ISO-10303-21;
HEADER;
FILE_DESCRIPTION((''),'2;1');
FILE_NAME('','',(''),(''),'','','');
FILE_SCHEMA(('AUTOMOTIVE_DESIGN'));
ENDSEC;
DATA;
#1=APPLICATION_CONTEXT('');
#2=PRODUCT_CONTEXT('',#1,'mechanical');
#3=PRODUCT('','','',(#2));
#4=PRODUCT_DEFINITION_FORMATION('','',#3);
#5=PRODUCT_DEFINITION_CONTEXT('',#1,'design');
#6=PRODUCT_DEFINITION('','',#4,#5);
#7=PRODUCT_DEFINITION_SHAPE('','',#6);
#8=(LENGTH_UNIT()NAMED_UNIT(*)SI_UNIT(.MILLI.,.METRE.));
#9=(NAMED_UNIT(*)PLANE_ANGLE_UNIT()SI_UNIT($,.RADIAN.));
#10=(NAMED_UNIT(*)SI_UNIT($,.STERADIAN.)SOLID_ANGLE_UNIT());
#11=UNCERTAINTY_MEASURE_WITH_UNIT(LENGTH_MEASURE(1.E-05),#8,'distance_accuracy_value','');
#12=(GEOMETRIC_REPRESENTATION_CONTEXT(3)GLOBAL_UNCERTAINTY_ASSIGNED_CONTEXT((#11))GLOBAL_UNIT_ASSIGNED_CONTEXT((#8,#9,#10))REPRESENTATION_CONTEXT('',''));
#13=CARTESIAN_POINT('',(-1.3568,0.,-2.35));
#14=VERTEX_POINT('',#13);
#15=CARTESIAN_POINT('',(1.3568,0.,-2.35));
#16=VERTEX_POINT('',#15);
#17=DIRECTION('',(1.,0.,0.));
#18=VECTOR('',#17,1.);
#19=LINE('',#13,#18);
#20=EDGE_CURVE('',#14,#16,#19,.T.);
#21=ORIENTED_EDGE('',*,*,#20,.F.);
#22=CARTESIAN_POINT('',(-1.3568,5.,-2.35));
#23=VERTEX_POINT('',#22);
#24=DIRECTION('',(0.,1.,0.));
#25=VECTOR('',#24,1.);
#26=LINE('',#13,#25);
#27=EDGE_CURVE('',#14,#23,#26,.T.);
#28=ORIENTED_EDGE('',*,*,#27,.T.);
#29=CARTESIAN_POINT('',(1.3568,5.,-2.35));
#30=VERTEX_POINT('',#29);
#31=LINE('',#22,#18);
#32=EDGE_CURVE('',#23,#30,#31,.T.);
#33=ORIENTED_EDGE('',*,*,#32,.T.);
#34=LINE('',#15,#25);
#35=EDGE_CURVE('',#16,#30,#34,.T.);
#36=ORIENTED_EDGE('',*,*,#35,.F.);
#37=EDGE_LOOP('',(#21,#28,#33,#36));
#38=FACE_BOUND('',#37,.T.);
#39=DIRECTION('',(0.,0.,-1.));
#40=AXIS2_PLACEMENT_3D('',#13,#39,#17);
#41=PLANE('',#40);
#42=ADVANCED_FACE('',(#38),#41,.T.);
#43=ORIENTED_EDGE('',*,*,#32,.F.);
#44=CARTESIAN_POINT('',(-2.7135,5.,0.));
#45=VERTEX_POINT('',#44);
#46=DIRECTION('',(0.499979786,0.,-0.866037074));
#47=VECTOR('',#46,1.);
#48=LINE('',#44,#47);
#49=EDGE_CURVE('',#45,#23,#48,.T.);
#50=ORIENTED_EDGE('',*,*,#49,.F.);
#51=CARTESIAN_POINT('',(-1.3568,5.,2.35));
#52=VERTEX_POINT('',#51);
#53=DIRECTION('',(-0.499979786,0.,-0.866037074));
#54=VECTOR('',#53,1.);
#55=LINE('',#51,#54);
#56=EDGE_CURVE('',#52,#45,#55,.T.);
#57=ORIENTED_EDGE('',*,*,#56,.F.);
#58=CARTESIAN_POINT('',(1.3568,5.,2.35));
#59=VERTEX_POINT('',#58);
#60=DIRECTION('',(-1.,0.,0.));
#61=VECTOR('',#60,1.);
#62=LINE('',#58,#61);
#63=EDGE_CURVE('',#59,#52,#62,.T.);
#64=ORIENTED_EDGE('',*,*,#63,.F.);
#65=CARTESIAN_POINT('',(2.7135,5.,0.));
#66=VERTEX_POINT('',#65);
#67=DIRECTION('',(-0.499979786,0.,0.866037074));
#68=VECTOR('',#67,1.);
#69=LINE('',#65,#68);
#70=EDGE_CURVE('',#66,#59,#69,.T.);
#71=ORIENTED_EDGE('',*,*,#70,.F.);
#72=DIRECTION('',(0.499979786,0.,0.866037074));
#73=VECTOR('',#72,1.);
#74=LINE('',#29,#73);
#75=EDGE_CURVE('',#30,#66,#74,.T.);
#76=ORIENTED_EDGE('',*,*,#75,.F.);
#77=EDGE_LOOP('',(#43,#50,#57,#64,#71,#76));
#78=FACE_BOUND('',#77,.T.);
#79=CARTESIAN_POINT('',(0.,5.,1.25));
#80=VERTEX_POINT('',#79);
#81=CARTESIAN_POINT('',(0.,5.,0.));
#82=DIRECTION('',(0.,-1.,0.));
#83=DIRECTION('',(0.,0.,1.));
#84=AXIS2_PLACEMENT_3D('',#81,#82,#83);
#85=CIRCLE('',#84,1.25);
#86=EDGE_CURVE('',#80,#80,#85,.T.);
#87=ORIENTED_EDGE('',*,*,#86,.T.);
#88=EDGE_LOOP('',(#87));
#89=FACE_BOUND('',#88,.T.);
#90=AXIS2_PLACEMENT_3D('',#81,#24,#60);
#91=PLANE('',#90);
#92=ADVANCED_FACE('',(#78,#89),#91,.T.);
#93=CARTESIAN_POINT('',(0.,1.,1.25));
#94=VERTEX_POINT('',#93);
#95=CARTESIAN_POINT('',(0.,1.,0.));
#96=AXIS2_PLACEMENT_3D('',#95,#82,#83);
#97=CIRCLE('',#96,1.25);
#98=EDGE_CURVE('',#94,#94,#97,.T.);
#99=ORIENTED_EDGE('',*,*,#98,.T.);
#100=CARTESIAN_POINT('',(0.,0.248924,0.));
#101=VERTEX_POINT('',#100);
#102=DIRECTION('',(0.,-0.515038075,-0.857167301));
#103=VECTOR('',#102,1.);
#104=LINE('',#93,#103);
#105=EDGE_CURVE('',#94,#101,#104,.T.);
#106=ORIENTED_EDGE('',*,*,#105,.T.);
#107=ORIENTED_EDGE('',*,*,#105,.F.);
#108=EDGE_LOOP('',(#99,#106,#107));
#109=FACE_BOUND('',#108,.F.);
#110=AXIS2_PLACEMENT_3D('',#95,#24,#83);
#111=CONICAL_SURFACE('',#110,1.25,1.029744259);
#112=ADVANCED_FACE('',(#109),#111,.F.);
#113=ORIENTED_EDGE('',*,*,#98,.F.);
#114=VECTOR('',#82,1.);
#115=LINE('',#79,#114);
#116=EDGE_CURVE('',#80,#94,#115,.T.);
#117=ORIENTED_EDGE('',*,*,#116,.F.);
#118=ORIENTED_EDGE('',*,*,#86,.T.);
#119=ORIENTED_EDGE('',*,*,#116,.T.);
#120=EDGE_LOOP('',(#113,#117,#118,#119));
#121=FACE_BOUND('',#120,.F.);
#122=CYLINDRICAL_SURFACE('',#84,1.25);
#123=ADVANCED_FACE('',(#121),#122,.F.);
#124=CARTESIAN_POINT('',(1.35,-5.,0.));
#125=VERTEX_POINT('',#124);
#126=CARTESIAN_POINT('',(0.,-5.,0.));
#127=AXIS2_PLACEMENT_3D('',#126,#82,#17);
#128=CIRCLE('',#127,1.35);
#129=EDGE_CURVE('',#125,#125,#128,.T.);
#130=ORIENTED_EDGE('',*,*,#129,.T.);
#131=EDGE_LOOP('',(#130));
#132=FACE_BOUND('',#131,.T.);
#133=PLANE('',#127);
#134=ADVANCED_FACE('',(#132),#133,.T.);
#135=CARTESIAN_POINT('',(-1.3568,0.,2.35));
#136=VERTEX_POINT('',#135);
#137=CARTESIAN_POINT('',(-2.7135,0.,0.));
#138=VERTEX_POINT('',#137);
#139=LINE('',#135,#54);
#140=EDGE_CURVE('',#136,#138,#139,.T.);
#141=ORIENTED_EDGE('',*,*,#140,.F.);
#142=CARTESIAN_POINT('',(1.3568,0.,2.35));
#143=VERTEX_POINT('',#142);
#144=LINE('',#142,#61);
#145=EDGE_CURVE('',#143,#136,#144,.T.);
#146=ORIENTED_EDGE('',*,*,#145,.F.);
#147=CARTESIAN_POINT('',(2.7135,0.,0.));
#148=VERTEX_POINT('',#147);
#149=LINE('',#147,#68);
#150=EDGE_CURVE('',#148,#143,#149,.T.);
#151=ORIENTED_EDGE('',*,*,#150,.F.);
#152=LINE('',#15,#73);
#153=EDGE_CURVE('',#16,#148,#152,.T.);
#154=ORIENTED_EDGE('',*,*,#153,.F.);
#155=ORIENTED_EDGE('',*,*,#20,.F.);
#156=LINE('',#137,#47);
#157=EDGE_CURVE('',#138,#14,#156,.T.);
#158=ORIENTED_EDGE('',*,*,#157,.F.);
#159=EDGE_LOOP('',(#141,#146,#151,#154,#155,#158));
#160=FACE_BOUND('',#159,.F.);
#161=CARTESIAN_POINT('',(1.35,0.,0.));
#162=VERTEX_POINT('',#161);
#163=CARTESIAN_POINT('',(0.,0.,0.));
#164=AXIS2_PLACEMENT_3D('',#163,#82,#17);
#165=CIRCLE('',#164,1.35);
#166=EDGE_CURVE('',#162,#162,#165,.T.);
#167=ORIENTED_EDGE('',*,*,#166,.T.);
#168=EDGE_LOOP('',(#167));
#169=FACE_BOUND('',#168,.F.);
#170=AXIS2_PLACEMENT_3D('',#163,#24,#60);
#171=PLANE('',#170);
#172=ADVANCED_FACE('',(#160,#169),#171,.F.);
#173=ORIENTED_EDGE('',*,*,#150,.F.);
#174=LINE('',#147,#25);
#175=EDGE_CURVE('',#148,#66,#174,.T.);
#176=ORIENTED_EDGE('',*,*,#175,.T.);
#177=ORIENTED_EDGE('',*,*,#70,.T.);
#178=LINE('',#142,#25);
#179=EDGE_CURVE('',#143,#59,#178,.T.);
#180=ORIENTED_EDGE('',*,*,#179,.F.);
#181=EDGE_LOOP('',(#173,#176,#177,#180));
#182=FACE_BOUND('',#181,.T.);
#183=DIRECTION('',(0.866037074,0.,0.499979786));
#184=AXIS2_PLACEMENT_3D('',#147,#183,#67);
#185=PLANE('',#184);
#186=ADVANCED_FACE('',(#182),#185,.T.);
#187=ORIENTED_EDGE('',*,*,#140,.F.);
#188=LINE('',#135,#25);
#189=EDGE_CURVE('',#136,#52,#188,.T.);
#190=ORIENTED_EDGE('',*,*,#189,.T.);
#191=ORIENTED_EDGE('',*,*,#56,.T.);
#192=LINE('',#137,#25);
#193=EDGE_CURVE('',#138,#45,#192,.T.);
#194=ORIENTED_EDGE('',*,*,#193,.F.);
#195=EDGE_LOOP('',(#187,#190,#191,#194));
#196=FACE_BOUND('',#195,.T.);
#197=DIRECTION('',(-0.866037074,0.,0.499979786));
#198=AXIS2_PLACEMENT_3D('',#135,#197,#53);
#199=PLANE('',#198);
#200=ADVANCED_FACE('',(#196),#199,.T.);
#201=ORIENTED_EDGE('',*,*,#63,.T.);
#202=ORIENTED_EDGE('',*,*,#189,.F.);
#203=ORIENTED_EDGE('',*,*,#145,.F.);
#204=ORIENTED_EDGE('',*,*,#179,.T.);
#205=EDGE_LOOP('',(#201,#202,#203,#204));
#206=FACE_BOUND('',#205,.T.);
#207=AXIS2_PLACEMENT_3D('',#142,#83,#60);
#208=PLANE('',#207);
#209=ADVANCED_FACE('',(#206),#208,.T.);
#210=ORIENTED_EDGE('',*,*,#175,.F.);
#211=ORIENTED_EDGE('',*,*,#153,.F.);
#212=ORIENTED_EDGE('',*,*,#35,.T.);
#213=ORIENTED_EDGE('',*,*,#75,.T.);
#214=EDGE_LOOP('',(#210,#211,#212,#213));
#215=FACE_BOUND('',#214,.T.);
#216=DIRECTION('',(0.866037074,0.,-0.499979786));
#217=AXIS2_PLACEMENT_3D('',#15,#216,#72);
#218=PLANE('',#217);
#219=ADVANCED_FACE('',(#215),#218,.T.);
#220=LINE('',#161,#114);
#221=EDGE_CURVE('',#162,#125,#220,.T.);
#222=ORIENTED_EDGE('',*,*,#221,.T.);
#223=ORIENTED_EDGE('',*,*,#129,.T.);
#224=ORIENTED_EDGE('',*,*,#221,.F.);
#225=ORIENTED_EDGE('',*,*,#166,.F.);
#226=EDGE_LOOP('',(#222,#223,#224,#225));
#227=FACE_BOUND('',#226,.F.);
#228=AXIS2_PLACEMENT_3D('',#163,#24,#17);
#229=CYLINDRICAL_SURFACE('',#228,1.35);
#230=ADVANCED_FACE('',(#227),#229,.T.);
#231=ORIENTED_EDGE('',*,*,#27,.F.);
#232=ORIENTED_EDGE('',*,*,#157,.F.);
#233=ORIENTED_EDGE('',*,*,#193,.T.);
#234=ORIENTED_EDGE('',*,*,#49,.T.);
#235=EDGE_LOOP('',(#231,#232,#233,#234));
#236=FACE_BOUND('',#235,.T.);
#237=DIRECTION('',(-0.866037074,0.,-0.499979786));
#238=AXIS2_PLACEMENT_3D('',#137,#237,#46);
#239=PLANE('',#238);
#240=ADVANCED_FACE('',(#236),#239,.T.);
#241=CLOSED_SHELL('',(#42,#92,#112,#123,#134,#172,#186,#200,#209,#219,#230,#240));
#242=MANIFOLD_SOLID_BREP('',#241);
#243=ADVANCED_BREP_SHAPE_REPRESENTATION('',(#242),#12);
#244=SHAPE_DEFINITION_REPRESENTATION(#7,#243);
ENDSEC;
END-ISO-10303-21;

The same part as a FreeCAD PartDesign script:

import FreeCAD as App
import Part
import Sketcher
Q = App.Units.Quantity

doc = App.newDocument("Part")
params = doc.addObject("Spreadsheet::Sheet", "Params")
for row, (alias, value) in enumerate([
    ("pad1_length", "5 mm"),
    ("sketch2_diameter", "2.7 mm"),
    ("pad2_length", "5 mm"),
    ("sketch3_diameter", "2.5 mm"),
    ("hole_diameter", "2.5 mm"),
    ("hole_depth", "4 mm"),
], start=1):
    params.set(f"A{row}", alias)
    params.set(f"B{row}", "=" + value)
    params.setAlias(f"B{row}", alias)

body = doc.addObject("PartDesign::Body", "Body")

sketch1 = body.newObject("Sketcher::SketchObject", "Sketch")
sketch1.AttachmentSupport = (doc.getObject("XZ_Plane"), [""])
sketch1.MapMode = "FlatFace"
sketch1.addGeometry([
    Part.LineSegment(App.Vector(2.7135, 0, 0), App.Vector(1.3568, -2.35, 0)),
    Part.LineSegment(App.Vector(1.3568, -2.35, 0), App.Vector(-1.3568, -2.35, 0)),
    Part.LineSegment(App.Vector(-1.3568, -2.35, 0), App.Vector(-2.7135, 0, 0)),
    Part.LineSegment(App.Vector(-2.7135, 0, 0), App.Vector(-1.3568, 2.35, 0)),
    Part.LineSegment(App.Vector(-1.3568, 2.35, 0), App.Vector(1.3568, 2.35, 0)),
    Part.LineSegment(App.Vector(1.3568, 2.35, 0), App.Vector(2.7135, 0, 0)),
], False)
sketch1.addConstraint([
    Sketcher.Constraint("Coincident", 0, 2, 1, 1),
    Sketcher.Constraint("Coincident", 1, 2, 2, 1),
    Sketcher.Constraint("Coincident", 2, 2, 3, 1),
    Sketcher.Constraint("Coincident", 3, 2, 4, 1),
    Sketcher.Constraint("Coincident", 4, 2, 5, 1),
    Sketcher.Constraint("Coincident", 5, 2, 0, 1),
    Sketcher.Constraint("Horizontal", 1),
    Sketcher.Constraint("Horizontal", 4),
    Sketcher.Constraint("Symmetric", 0, 2, 3, 2, -1, 1),
    Sketcher.Constraint("Symmetric", 2, 2, 5, 2, -1, 1),
    Sketcher.Constraint("PointOnObject", 2, 2, -1),
    Sketcher.Constraint("Parallel", 2, 5),
    Sketcher.Constraint("Vertical", 1, 2, 3, 2),
    Sketcher.Constraint("DistanceY", 1, 2, 3, 2, Q("4.7 mm")),
    Sketcher.Constraint("DistanceX", 1, 2, 1, 1, Q("2.7136 mm")),
    Sketcher.Constraint("DistanceX", 2, 2, 5, 2, Q("5.427 mm")),
])
pad1 = body.newObject("PartDesign::Pad", "Pad")
pad1.Profile = sketch1
pad1.setExpression("Length", "Params.pad1_length")
pad1.Reversed = True

sketch2 = body.newObject("Sketcher::SketchObject", "Sketch001")
sketch2.AttachmentSupport = (doc.getObject("XZ_Plane"), [""])
sketch2.MapMode = "FlatFace"
sketch2.addGeometry(Part.Circle(App.Vector(0, 0, 0), App.Vector(0, 0, 1), 1.35), False)
sketch2.addConstraint([
    Sketcher.Constraint("Coincident", 0, 3, -1, 1),
    Sketcher.Constraint("Diameter", 0, Q("2.7 mm")),
])
sketch2.setExpression("Constraints[1]", "Params.sketch2_diameter")
pad2 = body.newObject("PartDesign::Pad", "Pad001")
pad2.Profile = sketch2
pad2.setExpression("Length", "Params.pad2_length")

sketch3 = body.newObject("Sketcher::SketchObject", "Sketch002")
sketch3.AttachmentSupport = (doc.getObject("XZ_Plane"), [""])
sketch3.MapMode = "FlatFace"
sketch3.AttachmentOffset = App.Placement(App.Vector(0, 0, -5), App.Rotation())
sketch3.addGeometry(Part.Circle(App.Vector(0, 0, 0), App.Vector(0, 0, 1), 1.25), False)
sketch3.addConstraint([
    Sketcher.Constraint("Coincident", 0, 3, -1, 1),
    Sketcher.Constraint("Diameter", 0, Q("2.5 mm")),
])
sketch3.setExpression("Constraints[1]", "Params.sketch3_diameter")
doc.recompute()
hole = body.newObject("PartDesign::Hole", "Hole")
hole.Profile = sketch3
hole.ThreadType = "None"
hole.setExpression("Diameter", "Params.hole_diameter")
hole.DepthType = "Dimension"
hole.setExpression("Depth", "Params.hole_depth")
hole.DrillPoint = "Angled"
hole.DrillPointAngle = 118
hole.Reversed = True

doc.recompute()
